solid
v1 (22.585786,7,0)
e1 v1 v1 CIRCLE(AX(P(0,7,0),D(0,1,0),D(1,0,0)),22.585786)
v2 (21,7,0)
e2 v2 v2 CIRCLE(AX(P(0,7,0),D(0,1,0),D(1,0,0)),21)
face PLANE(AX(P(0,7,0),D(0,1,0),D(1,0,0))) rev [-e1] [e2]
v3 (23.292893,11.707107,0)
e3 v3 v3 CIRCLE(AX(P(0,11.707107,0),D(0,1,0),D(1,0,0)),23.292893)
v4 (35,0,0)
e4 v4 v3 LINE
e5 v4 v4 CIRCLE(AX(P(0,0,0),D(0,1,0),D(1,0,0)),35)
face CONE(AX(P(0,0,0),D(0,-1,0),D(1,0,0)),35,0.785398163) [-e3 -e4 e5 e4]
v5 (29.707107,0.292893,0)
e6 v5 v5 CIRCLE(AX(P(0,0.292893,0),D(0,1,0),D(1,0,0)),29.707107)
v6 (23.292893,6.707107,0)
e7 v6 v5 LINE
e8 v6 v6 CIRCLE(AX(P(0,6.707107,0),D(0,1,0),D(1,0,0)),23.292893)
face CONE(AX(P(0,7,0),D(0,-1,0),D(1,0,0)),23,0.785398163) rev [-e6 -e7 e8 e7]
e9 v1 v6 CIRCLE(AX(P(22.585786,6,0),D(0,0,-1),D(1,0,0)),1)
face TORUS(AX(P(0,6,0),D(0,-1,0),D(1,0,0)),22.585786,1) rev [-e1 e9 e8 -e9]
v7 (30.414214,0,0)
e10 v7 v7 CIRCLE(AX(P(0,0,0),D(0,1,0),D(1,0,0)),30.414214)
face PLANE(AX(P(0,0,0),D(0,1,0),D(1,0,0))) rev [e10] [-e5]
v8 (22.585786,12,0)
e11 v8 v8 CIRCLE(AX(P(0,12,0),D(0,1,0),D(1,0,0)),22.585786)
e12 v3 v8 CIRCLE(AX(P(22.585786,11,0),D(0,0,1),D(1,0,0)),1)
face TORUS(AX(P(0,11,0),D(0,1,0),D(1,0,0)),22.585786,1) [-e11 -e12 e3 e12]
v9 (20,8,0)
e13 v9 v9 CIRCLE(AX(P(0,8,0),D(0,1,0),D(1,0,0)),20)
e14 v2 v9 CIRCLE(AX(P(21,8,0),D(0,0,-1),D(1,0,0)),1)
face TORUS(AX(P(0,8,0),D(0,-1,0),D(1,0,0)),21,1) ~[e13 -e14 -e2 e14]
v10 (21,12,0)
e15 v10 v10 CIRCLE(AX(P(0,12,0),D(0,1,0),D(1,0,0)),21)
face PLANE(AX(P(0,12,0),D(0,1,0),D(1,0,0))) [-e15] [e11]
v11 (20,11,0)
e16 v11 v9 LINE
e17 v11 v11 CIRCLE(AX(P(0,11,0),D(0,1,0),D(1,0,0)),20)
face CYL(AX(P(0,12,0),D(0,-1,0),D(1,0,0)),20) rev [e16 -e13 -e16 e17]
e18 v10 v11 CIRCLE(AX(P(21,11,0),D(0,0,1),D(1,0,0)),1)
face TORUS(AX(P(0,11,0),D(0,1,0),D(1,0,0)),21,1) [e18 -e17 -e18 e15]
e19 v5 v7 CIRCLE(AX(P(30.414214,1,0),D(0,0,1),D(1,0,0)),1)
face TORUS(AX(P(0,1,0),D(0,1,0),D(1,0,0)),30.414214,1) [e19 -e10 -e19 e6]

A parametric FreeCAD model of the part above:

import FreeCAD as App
import Part
import Sketcher

V = App.Vector
Q = App.Units.Quantity


def edges_at(feature, points):
    """Names of the edges that pass closest to the given points."""
    edges = feature.Shape.Edges
    near = lambda p: min(range(len(edges)), key=lambda i: edges[i].distToShape(Part.Vertex(*p))[0])
    return sorted({f"Edge{near(p) + 1}" for p in points})

doc = App.newDocument("Part")
params = doc.addObject("Spreadsheet::Sheet", "Params")
for row, (alias, value) in enumerate([
    ("sketch1_width", "3 mm"),
    ("sketch1_width2", "5 mm"),
    ("revolution_angle", "360 deg"),
    ("fillet_radius", "1 mm"),
], start=1):
    params.set(f"A{row}", alias)
    params.set(f"B{row}", "=" + value)
    params.setAlias(f"B{row}", alias)

body = doc.addObject("PartDesign::Body", "Body")

# Sketch on XY plane
sketch1 = body.newObject("Sketcher::SketchObject", "Sketch")
sketch1.AttachmentSupport = (doc.getObject("XY_Plane"), [""])
sketch1.MapMode = "FlatFace"
sketch1.addGeometry([
    Part.LineSegment(V(20, 7, 0), V(23, 7, 0)),  # 0
    Part.LineSegment(V(23, 7, 0), V(30, 0, 0)),  # 1
    Part.LineSegment(V(30, 0, 0), V(35, 0, 0)),  # 2
    Part.LineSegment(V(35, 0, 0), V(23, 12, 0)),  # 3
    Part.LineSegment(V(23, 12, 0), V(20, 12, 0)),  # 4
    Part.LineSegment(V(20, 12, 0), V(20, 7, 0)),  # 5
], False)
sketch1.addConstraint([
    Sketcher.Constraint("Coincident", 0, 2, 1, 1),
    Sketcher.Constraint("Coincident", 1, 2, 2, 1),
    Sketcher.Constraint("Coincident", 2, 2, 3, 1),
    Sketcher.Constraint("Coincident", 3, 2, 4, 1),
    Sketcher.Constraint("Coincident", 4, 2, 5, 1),
    Sketcher.Constraint("Coincident", 5, 2, 0, 1),
    Sketcher.Constraint("Horizontal", 0),
    Sketcher.Constraint("Horizontal", 2),
    Sketcher.Constraint("Horizontal", 4),
    Sketcher.Constraint("Vertical", 5),
    Sketcher.Constraint("PointOnObject", 1, 2, -1),
    Sketcher.Constraint("Parallel", 1, 3),
    Sketcher.Constraint("Vertical", 0, 2, 3, 2),
    Sketcher.Constraint("Equal", 2, 5),
    Sketcher.Constraint("DistanceX", 0, 1, 0, 2, Q("3 mm")),
    Sketcher.Constraint("DistanceX", 2, 1, 2, 2, Q("5 mm")),
    Sketcher.Constraint("DistanceX", -1, 1, 0, 2, Q("23 mm")),
    Sketcher.Constraint("DistanceY", -1, 1, 0, 2, Q("7 mm")),
])
sketch1.setExpression("Constraints[14]", "Params.sketch1_width")
sketch1.setExpression("Constraints[15]", "Params.sketch1_width2")
revolution = body.newObject("PartDesign::Revolution", "Revolution")
revolution.Profile = sketch1
revolution.ReferenceAxis = (sketch1, ["V_Axis"])
revolution.setExpression("Angle", "Params.revolution_angle")
doc.recompute()

fillet = body.newObject("PartDesign::Fillet", "Fillet")
fillet.Base = (revolution, edges_at(revolution, [
    (-30, 0, 0),
    (-23, 7, 0),
    (-20, 7, 0),
    (-23, 12, 0),
    (-20, 12, 0),
]))
fillet.setExpression("Radius", "Params.fillet_radius")

doc.recompute()
